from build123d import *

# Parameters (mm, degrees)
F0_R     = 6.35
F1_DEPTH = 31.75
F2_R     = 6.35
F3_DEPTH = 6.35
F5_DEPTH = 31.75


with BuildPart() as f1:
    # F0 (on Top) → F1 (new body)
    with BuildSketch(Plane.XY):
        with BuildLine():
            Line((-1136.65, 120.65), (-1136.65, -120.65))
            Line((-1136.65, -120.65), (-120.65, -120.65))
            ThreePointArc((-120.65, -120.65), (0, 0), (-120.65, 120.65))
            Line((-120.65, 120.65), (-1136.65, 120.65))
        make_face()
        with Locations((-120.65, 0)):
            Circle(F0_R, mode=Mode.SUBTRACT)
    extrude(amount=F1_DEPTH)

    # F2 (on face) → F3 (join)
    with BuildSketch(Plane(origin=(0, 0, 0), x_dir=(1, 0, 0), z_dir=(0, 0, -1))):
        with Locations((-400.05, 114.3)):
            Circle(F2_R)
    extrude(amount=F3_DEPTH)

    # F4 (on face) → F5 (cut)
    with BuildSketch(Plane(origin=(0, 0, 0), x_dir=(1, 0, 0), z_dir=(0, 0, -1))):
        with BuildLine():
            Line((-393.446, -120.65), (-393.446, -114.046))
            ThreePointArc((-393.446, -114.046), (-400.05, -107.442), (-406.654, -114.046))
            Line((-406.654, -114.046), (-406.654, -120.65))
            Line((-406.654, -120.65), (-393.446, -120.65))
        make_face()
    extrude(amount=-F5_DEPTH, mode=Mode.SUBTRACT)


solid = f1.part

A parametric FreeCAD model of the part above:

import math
import FreeCAD as App
import Part
import Sketcher
Q = App.Units.Quantity

doc = App.newDocument("Part")
body = doc.addObject("PartDesign::Body", "Body")

sketch1 = body.newObject("Sketcher::SketchObject", "Sketch")
sketch1.AttachmentSupport = (doc.getObject("XY_Plane"), [""])
sketch1.MapMode = "FlatFace"
sketch1.addGeometry([
    Part.LineSegment(App.Vector(-1137, 121, 0), App.Vector(-1137, -121, 0)),
    Part.LineSegment(App.Vector(-1137, -121, 0), App.Vector(-121, -121, 0)),
    Part.ArcOfCircle(Part.Circle(App.Vector(-121, 0, 0), App.Vector(0, 0, 1), 121), math.radians(-90), math.radians(90)),
    Part.LineSegment(App.Vector(-121, 121, 0), App.Vector(-1137, 121, 0)),
    Part.Circle(App.Vector(-121, 0, 0), App.Vector(0, 0, 1), 6),
], False)
sketch1.addConstraint([
    Sketcher.Constraint("Coincident", 0, 2, 1, 1),
    Sketcher.Constraint("Tangent", 1, 2, 2, 1),
    Sketcher.Constraint("Tangent", 2, 2, 3, 1),
    Sketcher.Constraint("Coincident", 3, 2, 0, 1),
    Sketcher.Constraint("Vertical", 0),
    Sketcher.Constraint("Horizontal", 1),
    Sketcher.Constraint("Horizontal", 3),
    Sketcher.Constraint("Coincident", 4, 3, 2, 3),
    Sketcher.Constraint("PointOnObject", 2, 3, -1),
    Sketcher.Constraint("Diameter", 4, Q("0.5 in")),
    Sketcher.Constraint("DistanceX", 1, 1, 1, 2, Q("40 in")),
    Sketcher.Constraint("Radius", 2, Q("4.75 in")),
    Sketcher.Constraint("DistanceX", 2, 3, -1, 1, Q("4.75 in")),
])
pad1 = body.newObject("PartDesign::Pad", "Pad")
pad1.Profile = sketch1
pad1.Length = Q("1.25 in")

sketch2 = body.newObject("Sketcher::SketchObject", "Sketch001")
sketch2.AttachmentSupport = (doc.getObject("XY_Plane"), [""])
sketch2.MapMode = "FlatFace"
sketch2.addGeometry(Part.Circle(App.Vector(-400, -114, 0), App.Vector(0, 0, 1), 6), False)
sketch2.addConstraint([
    Sketcher.Constraint("Diameter", 0, Q("0.5 in")),
    Sketcher.Constraint("DistanceY", 0, 3, -1, 1, Q("4.5 in")),
    Sketcher.Constraint("DistanceX", 0, 3, -1, 1, Q("15.75 in")),
])
pad2 = body.newObject("PartDesign::Pad", "Pad001")
pad2.Profile = sketch2
pad2.Length = Q("0.25 in")
pad2.Reversed = True

sketch3 = body.newObject("Sketcher::SketchObject", "Sketch002")
sketch3.AttachmentSupport = (doc.getObject("XY_Plane"), [""])
sketch3.MapMode = "FlatFace"
sketch3.addGeometry([
    Part.LineSegment(App.Vector(-393, 121, 0), App.Vector(-393, 114, 0)),
    Part.ArcOfCircle(Part.Circle(App.Vector(-400, 114, 0), App.Vector(0, 0, 1), 7), math.radians(180), math.radians(360)),
    Part.LineSegment(App.Vector(-407, 114, 0), App.Vector(-407, 121, 0)),
    Part.LineSegment(App.Vector(-407, 121, 0), App.Vector(-393, 121, 0)),
], False)
sketch3.addConstraint([
    Sketcher.Constraint("Tangent", 0, 2, 1, 2),
    Sketcher.Constraint("Tangent", 1, 1, 2, 1),
    Sketcher.Constraint("Coincident", 2, 2, 3, 1),
    Sketcher.Constraint("Coincident", 3, 2, 0, 1),
    Sketcher.Constraint("Vertical", 0),
    Sketcher.Constraint("Vertical", 2),
    Sketcher.Constraint("Horizontal", 3),
    Sketcher.Constraint("Radius", 1, Q("0.26 in")),
    Sketcher.Constraint("DistanceY", 0, 2, 0, 1, Q("0.26 in")),
    Sketcher.Constraint("DistanceX", 1, 3, -1, 1, Q("15.75 in")),
    Sketcher.Constraint("DistanceY", -1, 1, 1, 3, Q("4.49 in")),
])
pocket1 = body.newObject("PartDesign::Pocket", "Pocket")
pocket1.Profile = sketch3
pocket1.Length = Q("1.25 in")
pocket1.Reversed = True

doc.recompute()
